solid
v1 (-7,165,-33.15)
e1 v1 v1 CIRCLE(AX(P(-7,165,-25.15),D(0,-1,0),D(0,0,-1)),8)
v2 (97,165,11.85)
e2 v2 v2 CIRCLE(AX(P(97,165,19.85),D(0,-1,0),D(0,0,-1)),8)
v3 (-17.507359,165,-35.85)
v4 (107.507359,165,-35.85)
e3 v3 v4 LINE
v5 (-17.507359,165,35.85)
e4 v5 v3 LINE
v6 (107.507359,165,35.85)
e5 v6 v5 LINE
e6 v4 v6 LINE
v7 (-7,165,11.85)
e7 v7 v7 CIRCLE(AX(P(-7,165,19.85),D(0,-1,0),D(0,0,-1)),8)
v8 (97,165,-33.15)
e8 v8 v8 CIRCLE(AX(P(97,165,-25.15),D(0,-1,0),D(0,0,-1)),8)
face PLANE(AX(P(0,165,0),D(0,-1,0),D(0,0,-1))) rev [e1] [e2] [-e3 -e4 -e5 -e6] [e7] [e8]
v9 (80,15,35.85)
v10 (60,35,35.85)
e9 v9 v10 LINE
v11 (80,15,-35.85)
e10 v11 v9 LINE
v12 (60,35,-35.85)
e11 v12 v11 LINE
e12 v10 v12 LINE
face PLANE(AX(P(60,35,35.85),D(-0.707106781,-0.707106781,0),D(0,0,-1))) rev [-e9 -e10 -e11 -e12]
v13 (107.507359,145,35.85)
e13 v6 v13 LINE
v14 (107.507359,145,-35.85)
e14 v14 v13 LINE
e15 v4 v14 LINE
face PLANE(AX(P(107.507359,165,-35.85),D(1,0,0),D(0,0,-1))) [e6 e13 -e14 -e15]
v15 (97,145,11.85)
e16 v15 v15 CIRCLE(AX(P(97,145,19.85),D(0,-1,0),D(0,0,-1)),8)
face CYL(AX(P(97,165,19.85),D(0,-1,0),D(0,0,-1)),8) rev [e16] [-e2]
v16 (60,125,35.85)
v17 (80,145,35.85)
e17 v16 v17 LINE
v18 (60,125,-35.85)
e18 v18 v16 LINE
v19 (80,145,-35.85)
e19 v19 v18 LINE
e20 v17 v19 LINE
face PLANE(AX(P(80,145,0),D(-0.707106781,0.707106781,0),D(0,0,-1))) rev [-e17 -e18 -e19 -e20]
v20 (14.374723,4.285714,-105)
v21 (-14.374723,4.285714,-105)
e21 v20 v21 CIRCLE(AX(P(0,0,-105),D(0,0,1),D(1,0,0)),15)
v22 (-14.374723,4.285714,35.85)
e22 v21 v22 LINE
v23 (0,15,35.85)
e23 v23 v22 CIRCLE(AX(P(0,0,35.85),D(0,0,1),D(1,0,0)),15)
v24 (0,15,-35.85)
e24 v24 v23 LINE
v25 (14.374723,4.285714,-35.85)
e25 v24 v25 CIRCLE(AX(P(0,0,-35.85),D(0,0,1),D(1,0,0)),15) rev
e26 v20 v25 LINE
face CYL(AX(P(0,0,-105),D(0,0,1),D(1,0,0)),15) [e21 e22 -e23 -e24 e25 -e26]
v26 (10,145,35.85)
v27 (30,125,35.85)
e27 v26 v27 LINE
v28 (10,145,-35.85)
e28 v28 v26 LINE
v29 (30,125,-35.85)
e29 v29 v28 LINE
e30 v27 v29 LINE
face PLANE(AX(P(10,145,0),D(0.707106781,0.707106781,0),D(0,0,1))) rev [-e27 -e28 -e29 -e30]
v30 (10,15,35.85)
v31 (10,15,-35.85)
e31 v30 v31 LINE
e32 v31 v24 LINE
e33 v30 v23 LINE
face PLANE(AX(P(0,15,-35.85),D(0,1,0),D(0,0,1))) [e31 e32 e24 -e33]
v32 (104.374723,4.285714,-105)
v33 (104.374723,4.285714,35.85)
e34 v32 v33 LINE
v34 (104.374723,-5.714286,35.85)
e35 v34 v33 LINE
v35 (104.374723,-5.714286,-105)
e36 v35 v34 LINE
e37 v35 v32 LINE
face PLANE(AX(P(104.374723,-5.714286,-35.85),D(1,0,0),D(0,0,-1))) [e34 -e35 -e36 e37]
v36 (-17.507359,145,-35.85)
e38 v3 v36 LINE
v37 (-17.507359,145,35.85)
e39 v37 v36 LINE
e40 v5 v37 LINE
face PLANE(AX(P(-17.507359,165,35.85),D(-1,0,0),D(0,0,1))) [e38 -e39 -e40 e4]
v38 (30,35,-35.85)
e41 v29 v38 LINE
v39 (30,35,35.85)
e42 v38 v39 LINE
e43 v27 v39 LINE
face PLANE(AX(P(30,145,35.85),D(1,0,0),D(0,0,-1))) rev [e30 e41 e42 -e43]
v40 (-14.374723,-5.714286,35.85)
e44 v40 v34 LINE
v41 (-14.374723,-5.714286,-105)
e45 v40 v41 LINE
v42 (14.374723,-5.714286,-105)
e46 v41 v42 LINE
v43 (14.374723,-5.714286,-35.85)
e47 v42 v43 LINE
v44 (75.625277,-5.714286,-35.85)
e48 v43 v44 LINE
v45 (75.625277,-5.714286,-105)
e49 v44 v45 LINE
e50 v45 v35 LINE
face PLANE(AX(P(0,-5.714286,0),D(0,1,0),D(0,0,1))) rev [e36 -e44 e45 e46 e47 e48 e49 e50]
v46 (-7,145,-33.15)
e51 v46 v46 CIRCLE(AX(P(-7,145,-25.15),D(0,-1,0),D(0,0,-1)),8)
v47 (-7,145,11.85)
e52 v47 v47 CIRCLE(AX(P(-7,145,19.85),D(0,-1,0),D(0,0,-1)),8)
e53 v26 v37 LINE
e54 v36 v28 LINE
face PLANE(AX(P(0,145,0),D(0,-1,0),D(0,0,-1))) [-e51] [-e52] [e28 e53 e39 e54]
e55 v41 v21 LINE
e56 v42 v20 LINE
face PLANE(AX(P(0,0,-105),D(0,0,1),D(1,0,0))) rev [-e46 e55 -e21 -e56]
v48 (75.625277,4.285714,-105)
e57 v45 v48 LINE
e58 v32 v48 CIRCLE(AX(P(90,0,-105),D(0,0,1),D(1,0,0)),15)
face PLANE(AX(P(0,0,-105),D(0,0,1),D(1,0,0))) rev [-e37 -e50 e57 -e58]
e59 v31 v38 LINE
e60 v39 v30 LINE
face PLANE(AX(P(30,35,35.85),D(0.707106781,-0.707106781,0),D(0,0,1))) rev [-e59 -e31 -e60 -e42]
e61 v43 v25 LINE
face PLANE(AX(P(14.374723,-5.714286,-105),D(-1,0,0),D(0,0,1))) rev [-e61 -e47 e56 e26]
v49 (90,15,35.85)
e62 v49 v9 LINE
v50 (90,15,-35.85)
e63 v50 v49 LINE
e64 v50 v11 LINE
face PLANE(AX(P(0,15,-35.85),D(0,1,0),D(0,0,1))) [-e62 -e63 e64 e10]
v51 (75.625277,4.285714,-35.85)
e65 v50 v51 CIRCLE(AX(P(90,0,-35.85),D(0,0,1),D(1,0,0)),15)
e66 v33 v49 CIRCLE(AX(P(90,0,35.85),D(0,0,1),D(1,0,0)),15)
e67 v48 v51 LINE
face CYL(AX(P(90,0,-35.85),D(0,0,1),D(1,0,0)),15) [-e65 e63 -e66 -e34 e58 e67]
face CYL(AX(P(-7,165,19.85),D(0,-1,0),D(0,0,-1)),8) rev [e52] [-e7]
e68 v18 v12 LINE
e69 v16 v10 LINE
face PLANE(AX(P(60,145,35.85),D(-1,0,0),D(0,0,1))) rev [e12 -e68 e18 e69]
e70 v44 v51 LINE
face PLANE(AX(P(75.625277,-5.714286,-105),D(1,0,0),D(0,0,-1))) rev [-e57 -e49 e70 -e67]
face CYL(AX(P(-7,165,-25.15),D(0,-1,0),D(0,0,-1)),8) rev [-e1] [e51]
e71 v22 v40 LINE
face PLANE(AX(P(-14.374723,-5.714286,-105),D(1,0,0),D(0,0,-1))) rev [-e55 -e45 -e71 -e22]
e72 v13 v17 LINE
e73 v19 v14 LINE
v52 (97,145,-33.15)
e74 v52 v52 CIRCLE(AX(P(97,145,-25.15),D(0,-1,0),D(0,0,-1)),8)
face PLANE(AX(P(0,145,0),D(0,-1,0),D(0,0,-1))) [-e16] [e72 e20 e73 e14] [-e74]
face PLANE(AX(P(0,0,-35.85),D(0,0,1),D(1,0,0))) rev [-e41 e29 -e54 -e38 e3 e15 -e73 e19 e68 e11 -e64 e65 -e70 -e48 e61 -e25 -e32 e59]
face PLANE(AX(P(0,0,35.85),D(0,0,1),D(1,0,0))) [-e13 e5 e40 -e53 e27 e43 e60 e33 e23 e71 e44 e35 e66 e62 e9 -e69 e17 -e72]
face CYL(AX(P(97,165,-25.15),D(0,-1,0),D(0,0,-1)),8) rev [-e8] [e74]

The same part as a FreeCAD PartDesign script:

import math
import FreeCAD as App
import Part
import Sketcher

V = App.Vector
Q = App.Units.Quantity


def edges_at(feature, points):
    """Names of the edges that pass closest to the given points."""
    edges = feature.Shape.Edges
    near = lambda p: min(range(len(edges)), key=lambda i: edges[i].distToShape(Part.Vertex(*p))[0])
    return sorted({f"Edge{near(p) + 1}" for p in points})

doc = App.newDocument("Part")
body = doc.addObject("PartDesign::Body", "Body")

# Sketch on XY plane
sketch1 = body.newObject("Sketcher::SketchObject", "Sketch")
sketch1.AttachmentSupport = (doc.getObject("XY_Plane"), [""])
sketch1.MapMode = "FlatFace"
sketch1.addGeometry([
    Part.ArcOfCircle(Part.Circle(V(0, 0, 0), V(0, 0, 1), 15), math.radians(17), math.radians(163)),
    Part.LineSegment(V(-14, 4, 0), V(14, 4, 0)),
], False)
sketch1.addConstraint([
    Sketcher.Constraint("Coincident", 0, 1, 1, 2),
    Sketcher.Constraint("Coincident", 1, 1, 0, 2),
    Sketcher.Constraint("Horizontal", 1),
    Sketcher.Constraint("Coincident", 0, 3, -1, 1),
    Sketcher.Constraint("Radius", 0, Q("15 mm")),
    Sketcher.Constraint("DistanceX", 1, 1, 1, 2, Q("28.749445 mm")),
])
pad1 = body.newObject("PartDesign::Pad", "Pad")
pad1.Profile = sketch1
pad1.Length = 105
pad1.Reversed = True
body2 = doc.addObject("PartDesign::Body", "Body001")

# Sketch on XY plane
sketch2 = body2.newObject("Sketcher::SketchObject", "Sketch001")
sketch2.AttachmentSupport = (doc.getObject("XY_Plane001"), [""])
sketch2.MapMode = "FlatFace"
sketch2.addGeometry([
    Part.LineSegment(V(76, 4, 0), V(104, 4, 0)),
    Part.ArcOfCircle(Part.Circle(V(90, 0, 0), V(0, 0, 1), 15), math.radians(17), math.radians(163)),
], False)
sketch2.addConstraint([
    Sketcher.Constraint("Coincident", 0, 1, 1, 2),
    Sketcher.Constraint("Coincident", 1, 1, 0, 2),
    Sketcher.Constraint("Horizontal", 0),
    Sketcher.Constraint("PointOnObject", 1, 3, -1),
    Sketcher.Constraint("Radius", 1, Q("15 mm")),
    Sketcher.Constraint("DistanceX", -1, 1, 1, 3, Q("90 mm")),
    Sketcher.Constraint("DistanceX", 0, 1, 0, 2, Q("28.749445 mm")),
])
pad2 = body2.newObject("PartDesign::Pad", "Pad001")
pad2.Profile = sketch2
pad2.Length = 105
pad2.Reversed = True
body.AllowCompound = True
doc.recompute()

boolean = body.newObject("PartDesign::Boolean", "Boolean")
boolean.Type = "Fuse"
boolean.addObjects([body2])

# Sketch on XZ plane
sketch3 = body.newObject("Sketcher::SketchObject", "Sketch002")
sketch3.AttachmentSupport = (doc.getObject("XZ_Plane"), [""])
sketch3.MapMode = "FlatFace"
sketch3.AttachmentOffset = App.Placement(V(0, 0, -4.285714), App.Rotation())
sketch3.addGeometry([
    Part.LineSegment(V(-14, 0, 0), V(-14, -105, 0)),  # 0
    Part.LineSegment(V(-14, -105, 0), V(14, -105, 0)),  # 1
    Part.LineSegment(V(14, -105, 0), V(14, 0, 0)),  # 2
    Part.LineSegment(V(14, 0, 0), V(-14, 0, 0)),  # 3
    Part.LineSegment(V(76, 0, 0), V(76, -105, 0)),  # 4
    Part.LineSegment(V(76, -105, 0), V(104, -105, 0)),  # 5
    Part.LineSegment(V(104, -105, 0), V(104, 0, 0)),  # 6
    Part.LineSegment(V(104, 0, 0), V(76, 0, 0)),  # 7
], False)
sketch3.addConstraint([
    Sketcher.Constraint("Coincident", 0, 2, 1, 1),
    Sketcher.Constraint("Coincident", 1, 2, 2, 1),
    Sketcher.Constraint("Coincident", 2, 2, 3, 1),
    Sketcher.Constraint("Coincident", 3, 2, 0, 1),
    Sketcher.Constraint("Coincident", 4, 2, 5, 1),
    Sketcher.Constraint("Coincident", 5, 2, 6, 1),
    Sketcher.Constraint("Coincident", 6, 2, 7, 1),
    Sketcher.Constraint("Coincident", 7, 2, 4, 1),
    Sketcher.Constraint("Vertical", 0),
    Sketcher.Constraint("Horizontal", 1),
    Sketcher.Constraint("Vertical", 2),
    Sketcher.Constraint("Horizontal", 3),
    Sketcher.Constraint("Vertical", 4),
    Sketcher.Constraint("Horizontal", 5),
    Sketcher.Constraint("Vertical", 6),
    Sketcher.Constraint("Horizontal", 7),
    Sketcher.Constraint("Symmetric", 2, 2, 3, 2, -1, 1),
    Sketcher.Constraint("PointOnObject", 6, 2, -1),
    Sketcher.Constraint("Horizontal", 1, 2, 4, 2),
    Sketcher.Constraint("Equal", 3, 5),
    Sketcher.Constraint("DistanceY", 0, 2, 0, 1, Q("105 mm")),
    Sketcher.Constraint("DistanceX", 0, 2, 4, 2, Q("90 mm")),
    Sketcher.Constraint("DistanceX", 1, 1, 1, 2, Q("28.749445 mm")),
])
pad3 = body.newObject("PartDesign::Pad", "Pad002")
pad3.Profile = sketch3
pad3.Length = 10

# Sketch on XY plane
sketch4 = body.newObject("Sketcher::SketchObject", "Sketch003")
sketch4.AttachmentSupport = (doc.getObject("XY_Plane"), [""])
sketch4.MapMode = "FlatFace"
sketch4.addGeometry([
    Part.LineSegment(V(-14, -6, 0), V(104, -6, 0)),  # 0
    Part.LineSegment(V(104, -6, 0), V(104, 4, 0)),  # 1
    Part.ArcOfCircle(Part.Circle(V(90, 0, 0), V(0, 0, 1), 15), math.radians(17), math.radians(90)),  # 2
    Part.LineSegment(V(90, 15, 0), V(0, 15, 0)),  # 3
    Part.ArcOfCircle(Part.Circle(V(0, 0, 0), V(0, 0, 1), 15), math.radians(90), math.radians(163)),  # 4
    Part.LineSegment(V(-14, 4, 0), V(-14, -6, 0)),  # 5
], False)
sketch4.addConstraint([
    Sketcher.Constraint("Coincident", 0, 2, 1, 1),
    Sketcher.Constraint("Coincident", 1, 2, 2, 1),
    Sketcher.Constraint("Tangent", 2, 2, 3, 1),
    Sketcher.Constraint("Tangent", 3, 2, 4, 1),
    Sketcher.Constraint("Coincident", 4, 2, 5, 1),
    Sketcher.Constraint("Coincident", 5, 2, 0, 1),
    Sketcher.Constraint("Horizontal", 0),
    Sketcher.Constraint("Vertical", 1),
    Sketcher.Constraint("Horizontal", 3),
    Sketcher.Constraint("Vertical", 5),
    Sketcher.Constraint("Coincident", 4, 3, -1, 1),
    Sketcher.Constraint("Equal", 2, 4),
    Sketcher.Constraint("Horizontal", 1, 2, 4, 2),
    Sketcher.Constraint("Radius", 2, Q("15 mm")),
    Sketcher.Constraint("DistanceX", 3, 2, 3, 1, Q("90 mm")),
    Sketcher.Constraint("DistanceY", 1, 1, 1, 2, Q("10 mm")),
    Sketcher.Constraint("DistanceX", 0, 1, 0, 2, Q("118.749445 mm")),
])
pad4 = body.newObject("PartDesign::Pad", "Pad003")
pad4.Profile = sketch4
pad4.Length = 71.7
pad4.Midplane = True

# Sketch on XZ plane
sketch5 = body.newObject("Sketcher::SketchObject", "Sketch004")
sketch5.AttachmentSupport = (doc.getObject("XZ_Plane"), [""])
sketch5.MapMode = "FlatFace"
sketch5.AttachmentOffset = App.Placement(V(0, 0, -15), App.Rotation())
sketch5.addGeometry([
    Part.LineSegment(V(30, -36, 0), V(30, 36, 0)),
    Part.LineSegment(V(30, 36, 0), V(60, 36, 0)),
    Part.LineSegment(V(60, 36, 0), V(60, -36, 0)),
    Part.LineSegment(V(60, -36, 0), V(30, -36, 0)),
], False)
sketch5.addConstraint([
    Sketcher.Constraint("Coincident", 0, 2, 1, 1),
    Sketcher.Constraint("Coincident", 1, 2, 2, 1),
    Sketcher.Constraint("Coincident", 2, 2, 3, 1),
    Sketcher.Constraint("Coincident", 3, 2, 0, 1),
    Sketcher.Constraint("Vertical", 0),
    Sketcher.Constraint("Horizontal", 1),
    Sketcher.Constraint("Vertical", 2),
    Sketcher.Constraint("Horizontal", 3),
    Sketcher.Constraint("DistanceX", 1, 1, 1, 2, Q("30 mm")),
    Sketcher.Constraint("DistanceY", 0, 1, 0, 2, Q("71.7 mm")),
    Sketcher.Constraint("DistanceX", -1, 1, 0, 2, Q("30 mm")),
    Sketcher.Constraint("DistanceY", -1, 1, 0, 2, Q("35.85 mm")),
])
pad5 = body.newObject("PartDesign::Pad", "Pad004")
pad5.Profile = sketch5
pad5.Length = 130
pad5.Reversed = True

# Sketch on XZ plane
sketch6 = body.newObject("Sketcher::SketchObject", "Sketch005")
sketch6.AttachmentSupport = (doc.getObject("XZ_Plane"), [""])
sketch6.MapMode = "FlatFace"
sketch6.AttachmentOffset = App.Placement(V(0, 0, -145), App.Rotation())
sketch6.addGeometry([
    Part.LineSegment(V(-18, 36, 0), V(-18, -36, 0)),  # 0
    Part.LineSegment(V(-18, -36, 0), V(108, -36, 0)),  # 1
    Part.LineSegment(V(108, -36, 0), V(108, 36, 0)),  # 2
    Part.LineSegment(V(108, 36, 0), V(-18, 36, 0)),  # 3
    Part.Circle(V(-7, -25, 0), V(0, 0, 1), 8),  # 4
    Part.Circle(V(97, -25, 0), V(0, 0, 1), 8),  # 5
    Part.Circle(V(-7, 20, 0), V(0, 0, 1), 8),  # 6
    Part.Circle(V(97, 20, 0), V(0, 0, 1), 8),  # 7
], False)
sketch6.addConstraint([
    Sketcher.Constraint("Coincident", 0, 2, 1, 1),
    Sketcher.Constraint("Coincident", 1, 2, 2, 1),
    Sketcher.Constraint("Coincident", 2, 2, 3, 1),
    Sketcher.Constraint("Coincident", 3, 2, 0, 1),
    Sketcher.Constraint("Vertical", 0),
    Sketcher.Constraint("Horizontal", 1),
    Sketcher.Constraint("Vertical", 2),
    Sketcher.Constraint("Horizontal", 3),
    Sketcher.Constraint("Equal", 4, 5),
    Sketcher.Constraint("Equal", 5, 6),
    Sketcher.Constraint("Equal", 6, 7),
    Sketcher.Constraint("Horizontal", 4, 3, 5, 3),
    Sketcher.Constraint("Horizontal", 6, 3, 7, 3),
    Sketcher.Constraint("Vertical", 4, 3, 6, 3),
    Sketcher.Constraint("Vertical", 5, 3, 7, 3),
    Sketcher.Constraint("Diameter", 4, Q("16 mm")),
    Sketcher.Constraint("DistanceY", 0, 2, 0, 1, Q("71.7 mm")),
    Sketcher.Constraint("DistanceX", 4, 3, -1, 1, Q("7 mm")),
    Sketcher.Constraint("DistanceX", -1, 1, 5, 3, Q("97 mm")),
    Sketcher.Constraint("DistanceY", 4, 3, 6, 3, Q("45 mm")),
    Sketcher.Constraint("DistanceY", 7, 3, 2, 2, Q("16 mm")),
    Sketcher.Constraint("DistanceY", 4, 3, -1, 1, Q("25.15 mm")),
    Sketcher.Constraint("DistanceX", 1, 1, 1, 2, Q("125.014719 mm")),
    Sketcher.Constraint("DistanceX", 0, 2, -1, 1, Q("17.507359 mm")),
])
pad6 = body.newObject("PartDesign::Pad", "Pad005")
pad6.Profile = sketch6
pad6.Length = 20
pad6.Reversed = True
doc.recompute()

chamfer = body.newObject("PartDesign::Chamfer", "Chamfer")
chamfer.Base = (pad6, edges_at(pad6, [
    (30, 15, 0),
    (60, 15, 0),
    (30, 145, 0),
    (60, 145, 0),
]))
chamfer.Size = 20

doc.recompute()
